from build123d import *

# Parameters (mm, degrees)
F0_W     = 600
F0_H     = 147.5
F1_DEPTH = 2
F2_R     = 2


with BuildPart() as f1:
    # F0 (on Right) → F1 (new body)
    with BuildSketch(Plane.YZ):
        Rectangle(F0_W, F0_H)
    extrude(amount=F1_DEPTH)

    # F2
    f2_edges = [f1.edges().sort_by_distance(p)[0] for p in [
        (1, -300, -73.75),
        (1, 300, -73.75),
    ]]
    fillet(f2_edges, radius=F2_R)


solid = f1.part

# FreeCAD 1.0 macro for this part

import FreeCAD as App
import Part
import Sketcher

V = App.Vector
Q = App.Units.Quantity


def edges_at(feature, points):
    """Names of the edges that pass closest to the given points."""
    edges = feature.Shape.Edges
    near = lambda p: min(range(len(edges)), key=lambda i: edges[i].distToShape(Part.Vertex(*p))[0])
    return sorted({f"Edge{near(p) + 1}" for p in points})


def add_polygon(sketch, points):
    """Adds a closed chain of lines whose ends are joined by coincident constraints."""
    first, n = sketch.GeometryCount, len(points)
    for a, b in zip(points, points[1:] + points[:1]):
        sketch.addGeometry(Part.LineSegment(App.Vector(*a, 0), App.Vector(*b, 0)), False)
    for i in range(n):
        sketch.addConstraint(Sketcher.Constraint("Coincident", first + i, 2, first + (i + 1) % n, 1))

doc = App.newDocument("Part")
body = doc.addObject("PartDesign::Body", "Body")

# Sketch on YZ plane
sketch1 = body.newObject("Sketcher::SketchObject", "Sketch")
sketch1.AttachmentSupport = (doc.getObject("YZ_Plane"), [""])
sketch1.MapMode = "FlatFace"
add_polygon(sketch1, [(-300, 74), (-300, -74), (300, -74), (300, 74)])  # lines 0-3
sketch1.addConstraint([
    Sketcher.Constraint("Vertical", 0),
    Sketcher.Constraint("Horizontal", 1),
    Sketcher.Constraint("Vertical", 2),
    Sketcher.Constraint("Horizontal", 3),
    Sketcher.Constraint("Symmetric", 0, 2, 2, 2, -1, 1),
    Sketcher.Constraint("DistanceX", 1, 1, 1, 2, Q("600 mm")),
    Sketcher.Constraint("DistanceY", 0, 2, 0, 1, Q("147.5 mm")),
])
pad1 = body.newObject("PartDesign::Pad", "Pad")
pad1.Profile = sketch1
pad1.Length = 2
doc.recompute()

fillet = body.newObject("PartDesign::Fillet", "Fillet")
fillet.Base = (pad1, edges_at(pad1, [(1, -300, -73.75), (1, 300, -73.75)]))
fillet.Radius = 2

doc.recompute()
